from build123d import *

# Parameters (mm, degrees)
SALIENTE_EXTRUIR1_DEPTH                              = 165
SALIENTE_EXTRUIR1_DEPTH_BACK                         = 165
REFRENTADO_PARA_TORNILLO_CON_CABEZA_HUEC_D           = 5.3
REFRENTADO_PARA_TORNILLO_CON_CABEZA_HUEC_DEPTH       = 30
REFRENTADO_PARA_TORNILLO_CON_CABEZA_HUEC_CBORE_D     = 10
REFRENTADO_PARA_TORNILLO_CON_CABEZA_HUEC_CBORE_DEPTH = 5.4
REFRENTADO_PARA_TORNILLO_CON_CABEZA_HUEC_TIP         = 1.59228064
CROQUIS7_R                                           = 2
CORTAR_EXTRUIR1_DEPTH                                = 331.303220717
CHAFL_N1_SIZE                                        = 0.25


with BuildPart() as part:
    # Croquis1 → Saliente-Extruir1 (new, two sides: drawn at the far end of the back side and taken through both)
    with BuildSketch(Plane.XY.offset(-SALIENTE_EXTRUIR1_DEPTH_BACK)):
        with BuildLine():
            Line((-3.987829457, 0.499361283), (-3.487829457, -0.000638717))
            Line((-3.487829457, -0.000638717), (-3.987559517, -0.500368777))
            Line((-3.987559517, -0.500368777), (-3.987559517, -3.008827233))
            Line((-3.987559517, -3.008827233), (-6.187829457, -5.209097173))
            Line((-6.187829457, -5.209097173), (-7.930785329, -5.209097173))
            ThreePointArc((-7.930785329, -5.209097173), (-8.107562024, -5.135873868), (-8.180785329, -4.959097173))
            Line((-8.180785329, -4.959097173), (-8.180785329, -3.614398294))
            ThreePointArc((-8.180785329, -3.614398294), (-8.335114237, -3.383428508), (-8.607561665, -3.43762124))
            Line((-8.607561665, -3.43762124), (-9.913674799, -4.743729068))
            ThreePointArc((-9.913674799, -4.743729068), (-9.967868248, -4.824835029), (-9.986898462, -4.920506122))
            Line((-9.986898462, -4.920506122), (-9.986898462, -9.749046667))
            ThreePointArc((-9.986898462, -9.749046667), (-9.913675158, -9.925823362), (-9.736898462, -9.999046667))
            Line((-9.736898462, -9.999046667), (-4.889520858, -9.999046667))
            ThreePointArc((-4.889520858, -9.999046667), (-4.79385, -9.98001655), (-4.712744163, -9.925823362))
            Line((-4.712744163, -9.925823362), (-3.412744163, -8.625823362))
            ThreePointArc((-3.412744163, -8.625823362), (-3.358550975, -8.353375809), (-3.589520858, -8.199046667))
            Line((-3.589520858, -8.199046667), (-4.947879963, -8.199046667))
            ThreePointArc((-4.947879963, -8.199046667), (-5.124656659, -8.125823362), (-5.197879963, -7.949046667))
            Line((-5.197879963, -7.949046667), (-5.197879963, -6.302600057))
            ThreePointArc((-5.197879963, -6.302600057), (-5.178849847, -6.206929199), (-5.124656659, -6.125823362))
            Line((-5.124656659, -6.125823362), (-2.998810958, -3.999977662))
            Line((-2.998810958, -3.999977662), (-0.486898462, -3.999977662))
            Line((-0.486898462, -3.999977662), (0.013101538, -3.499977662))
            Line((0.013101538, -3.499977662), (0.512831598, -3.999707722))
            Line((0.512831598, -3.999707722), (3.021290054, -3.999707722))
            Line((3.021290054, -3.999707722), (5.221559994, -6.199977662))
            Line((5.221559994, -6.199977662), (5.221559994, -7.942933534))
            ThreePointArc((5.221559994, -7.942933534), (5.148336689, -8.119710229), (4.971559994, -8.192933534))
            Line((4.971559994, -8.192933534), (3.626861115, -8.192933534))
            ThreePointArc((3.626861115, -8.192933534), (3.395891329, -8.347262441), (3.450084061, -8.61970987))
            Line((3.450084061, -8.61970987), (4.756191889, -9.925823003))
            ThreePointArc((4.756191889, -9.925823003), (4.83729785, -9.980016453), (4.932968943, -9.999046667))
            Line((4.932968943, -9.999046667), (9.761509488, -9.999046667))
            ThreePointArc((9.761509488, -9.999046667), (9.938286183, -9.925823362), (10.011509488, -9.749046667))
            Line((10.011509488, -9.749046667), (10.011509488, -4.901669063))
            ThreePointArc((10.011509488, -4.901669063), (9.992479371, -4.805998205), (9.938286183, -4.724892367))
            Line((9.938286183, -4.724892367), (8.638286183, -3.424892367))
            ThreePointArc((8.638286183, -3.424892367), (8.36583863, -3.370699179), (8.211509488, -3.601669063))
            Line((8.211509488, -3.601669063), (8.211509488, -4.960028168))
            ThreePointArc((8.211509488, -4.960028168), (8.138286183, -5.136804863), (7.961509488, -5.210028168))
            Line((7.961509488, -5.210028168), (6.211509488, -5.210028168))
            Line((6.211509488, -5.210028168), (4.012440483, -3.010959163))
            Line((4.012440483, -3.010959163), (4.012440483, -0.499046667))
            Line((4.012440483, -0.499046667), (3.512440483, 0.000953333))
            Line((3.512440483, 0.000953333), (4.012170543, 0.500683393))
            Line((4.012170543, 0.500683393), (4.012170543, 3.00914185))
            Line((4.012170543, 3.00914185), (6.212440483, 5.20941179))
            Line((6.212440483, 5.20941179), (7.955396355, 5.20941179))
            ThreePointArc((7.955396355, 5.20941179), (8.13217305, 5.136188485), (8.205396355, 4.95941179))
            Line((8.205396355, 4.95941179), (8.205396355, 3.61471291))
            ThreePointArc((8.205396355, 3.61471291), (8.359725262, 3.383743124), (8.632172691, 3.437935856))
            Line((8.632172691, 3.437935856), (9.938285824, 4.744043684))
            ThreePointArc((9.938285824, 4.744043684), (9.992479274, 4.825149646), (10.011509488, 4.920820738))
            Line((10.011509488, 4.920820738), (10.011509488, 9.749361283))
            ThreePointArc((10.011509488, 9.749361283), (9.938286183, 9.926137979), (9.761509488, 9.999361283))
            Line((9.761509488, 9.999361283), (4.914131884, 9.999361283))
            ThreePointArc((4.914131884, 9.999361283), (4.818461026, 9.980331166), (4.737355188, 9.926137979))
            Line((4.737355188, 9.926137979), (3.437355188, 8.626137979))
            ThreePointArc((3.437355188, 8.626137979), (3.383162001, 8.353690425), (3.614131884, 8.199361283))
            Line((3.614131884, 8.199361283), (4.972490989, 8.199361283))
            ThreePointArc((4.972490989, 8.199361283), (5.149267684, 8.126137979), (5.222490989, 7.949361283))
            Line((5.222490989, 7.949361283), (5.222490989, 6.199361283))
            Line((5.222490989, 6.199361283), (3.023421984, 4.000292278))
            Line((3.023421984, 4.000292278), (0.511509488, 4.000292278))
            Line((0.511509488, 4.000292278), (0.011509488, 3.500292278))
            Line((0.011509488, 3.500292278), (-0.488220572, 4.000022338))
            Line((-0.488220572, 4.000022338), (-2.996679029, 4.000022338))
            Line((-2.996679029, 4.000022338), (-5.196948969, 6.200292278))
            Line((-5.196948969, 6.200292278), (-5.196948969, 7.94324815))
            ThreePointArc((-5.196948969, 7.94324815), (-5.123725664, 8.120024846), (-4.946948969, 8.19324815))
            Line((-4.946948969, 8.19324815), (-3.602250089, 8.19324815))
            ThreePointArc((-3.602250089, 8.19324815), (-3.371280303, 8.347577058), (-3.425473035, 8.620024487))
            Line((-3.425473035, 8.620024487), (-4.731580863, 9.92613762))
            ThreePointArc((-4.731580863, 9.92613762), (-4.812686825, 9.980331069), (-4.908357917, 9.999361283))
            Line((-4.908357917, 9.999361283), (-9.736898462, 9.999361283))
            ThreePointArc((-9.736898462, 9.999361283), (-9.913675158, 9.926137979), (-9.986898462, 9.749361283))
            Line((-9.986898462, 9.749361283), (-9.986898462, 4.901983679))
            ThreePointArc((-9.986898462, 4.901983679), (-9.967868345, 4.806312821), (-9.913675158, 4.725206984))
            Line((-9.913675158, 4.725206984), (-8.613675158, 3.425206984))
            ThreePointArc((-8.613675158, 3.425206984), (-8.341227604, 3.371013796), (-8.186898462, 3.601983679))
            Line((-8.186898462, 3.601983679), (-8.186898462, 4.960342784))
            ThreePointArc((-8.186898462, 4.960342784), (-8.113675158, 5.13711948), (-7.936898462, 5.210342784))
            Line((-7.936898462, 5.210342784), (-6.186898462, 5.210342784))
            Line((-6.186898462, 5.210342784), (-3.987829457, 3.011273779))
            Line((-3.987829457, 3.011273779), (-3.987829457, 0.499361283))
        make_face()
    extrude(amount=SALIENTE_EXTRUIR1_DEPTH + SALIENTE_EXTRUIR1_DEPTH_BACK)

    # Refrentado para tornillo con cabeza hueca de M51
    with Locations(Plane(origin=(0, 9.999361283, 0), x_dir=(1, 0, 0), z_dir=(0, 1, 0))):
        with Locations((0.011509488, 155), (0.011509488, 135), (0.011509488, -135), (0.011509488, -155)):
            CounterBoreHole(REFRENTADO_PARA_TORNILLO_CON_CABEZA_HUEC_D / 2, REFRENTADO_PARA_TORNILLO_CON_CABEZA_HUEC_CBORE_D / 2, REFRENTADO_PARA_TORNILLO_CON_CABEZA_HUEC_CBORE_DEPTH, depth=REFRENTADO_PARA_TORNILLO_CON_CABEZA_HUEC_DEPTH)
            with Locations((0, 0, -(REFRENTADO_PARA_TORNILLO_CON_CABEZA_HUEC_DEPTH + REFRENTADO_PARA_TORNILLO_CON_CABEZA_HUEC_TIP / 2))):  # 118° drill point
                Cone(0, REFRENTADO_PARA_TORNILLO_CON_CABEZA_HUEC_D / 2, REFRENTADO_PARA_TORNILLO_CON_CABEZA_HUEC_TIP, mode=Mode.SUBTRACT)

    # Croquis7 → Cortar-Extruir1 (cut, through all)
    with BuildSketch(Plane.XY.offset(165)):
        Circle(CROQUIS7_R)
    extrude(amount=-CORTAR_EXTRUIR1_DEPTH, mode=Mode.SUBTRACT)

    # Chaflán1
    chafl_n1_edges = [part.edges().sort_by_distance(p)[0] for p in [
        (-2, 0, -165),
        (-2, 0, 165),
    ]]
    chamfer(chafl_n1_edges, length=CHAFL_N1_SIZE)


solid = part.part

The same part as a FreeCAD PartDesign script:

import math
import FreeCAD as App
import Part
import Sketcher
from FreeCAD import Vector
Q = App.Units.Quantity


def edges_at(feature, points):
    """Names of the edges that pass closest to the given points."""
    edges = feature.Shape.Edges
    near = lambda p: min(range(len(edges)), key=lambda i: edges[i].distToShape(Part.Vertex(*p))[0])
    return sorted({f"Edge{near(p) + 1}" for p in points})

doc = App.newDocument("Part")
body = doc.addObject("PartDesign::Body", "Body")

# Sketch on XY plane
sketch1 = body.newObject("Sketcher::SketchObject", "Sketch")
sketch1.AttachmentSupport = (doc.getObject("XY_Plane"), [""])
sketch1.MapMode = "FlatFace"
sketch1.addGeometry([
    Part.LineSegment(Vector(-3.987829, 0.499361, 0), Vector(-3.487829, -0.000639, 0)),  # 0
    Part.LineSegment(Vector(-3.487829, -0.000639, 0), Vector(-3.98756, -0.500369, 0)),  # 1
    Part.LineSegment(Vector(-3.98756, -0.500369, 0), Vector(-3.98756, -3.008827, 0)),  # 2
    Part.LineSegment(Vector(-3.98756, -3.008827, 0), Vector(-6.187829, -5.209097, 0)),  # 3
    Part.LineSegment(Vector(-6.187829, -5.209097, 0), Vector(-7.930785, -5.209097, 0)),  # 4
    Part.ArcOfCircle(Part.Circle(Vector(-7.930785, -4.959097, 0), Vector(0, 0, 1), 0.25), math.radians(-180), math.radians(-90)),  # 5
    Part.LineSegment(Vector(-8.180785, -4.959097, 0), Vector(-8.180785, -3.614398, 0)),  # 6
    Part.ArcOfCircle(Part.Circle(Vector(-8.430785, -3.614398, 0), Vector(0, 0, 1), 0.25), math.radians(0), math.radians(134.999884)),  # 7
    Part.LineSegment(Vector(-8.607562, -3.437621, 0), Vector(-9.913675, -4.743729, 0)),  # 8
    Part.ArcOfCircle(Part.Circle(Vector(-9.736898, -4.920506, 0), Vector(0, 0, 1), 0.25), math.radians(134.999884), math.radians(180)),  # 9
    Part.LineSegment(Vector(-9.986898, -4.920506, 0), Vector(-9.986898, -9.749047, 0)),  # 10
    Part.ArcOfCircle(Part.Circle(Vector(-9.736898, -9.749047, 0), Vector(0, 0, 1), 0.25), math.radians(180), math.radians(270)),  # 11
    Part.LineSegment(Vector(-9.736898, -9.999047, 0), Vector(-4.889521, -9.999047, 0)),  # 12
    Part.ArcOfCircle(Part.Circle(Vector(-4.889521, -9.749047, 0), Vector(0, 0, 1), 0.25), math.radians(-90), math.radians(-45)),  # 13
    Part.LineSegment(Vector(-4.712744, -9.925823, 0), Vector(-3.412744, -8.625823, 0)),  # 14
    Part.ArcOfCircle(Part.Circle(Vector(-3.589521, -8.449047, 0), Vector(0, 0, 1), 0.25), math.radians(-45), math.radians(90)),  # 15
    Part.LineSegment(Vector(-3.589521, -8.199047, 0), Vector(-4.94788, -8.199047, 0)),  # 16
    Part.ArcOfCircle(Part.Circle(Vector(-4.94788, -7.949047, 0), Vector(0, 0, 1), 0.25), math.radians(180), math.radians(270)),  # 17
    Part.LineSegment(Vector(-5.19788, -7.949047, 0), Vector(-5.19788, -6.3026, 0)),  # 18
    Part.ArcOfCircle(Part.Circle(Vector(-4.94788, -6.3026, 0), Vector(0, 0, 1), 0.25), math.radians(135), math.radians(180.000001)),  # 19
    Part.LineSegment(Vector(-5.124657, -6.125823, 0), Vector(-2.998811, -3.999978, 0)),  # 20
    Part.LineSegment(Vector(-2.998811, -3.999978, 0), Vector(-0.486898, -3.999978, 0)),  # 21
    Part.LineSegment(Vector(-0.486898, -3.999978, 0), Vector(0.013102, -3.499978, 0)),  # 22
    Part.LineSegment(Vector(0.013102, -3.499978, 0), Vector(0.512832, -3.999708, 0)),  # 23
    Part.LineSegment(Vector(0.512832, -3.999708, 0), Vector(3.02129, -3.999708, 0)),  # 24
    Part.LineSegment(Vector(3.02129, -3.999708, 0), Vector(5.22156, -6.199978, 0)),  # 25
    Part.LineSegment(Vector(5.22156, -6.199978, 0), Vector(5.22156, -7.942934, 0)),  # 26
    Part.ArcOfCircle(Part.Circle(Vector(4.97156, -7.942934, 0), Vector(0, 0, 1), 0.25), math.radians(-90), math.radians(0)),  # 27
    Part.LineSegment(Vector(4.97156, -8.192934, 0), Vector(3.626861, -8.192934, 0)),  # 28
    Part.ArcOfCircle(Part.Circle(Vector(3.626861, -8.442934, 0), Vector(0, 0, 1), 0.25), math.radians(90), math.radians(224.999884)),  # 29
    Part.LineSegment(Vector(3.450084, -8.61971, 0), Vector(4.756192, -9.925823, 0)),  # 30
    Part.ArcOfCircle(Part.Circle(Vector(4.932969, -9.749047, 0), Vector(0, 0, 1), 0.25), math.radians(-135.000117), math.radians(-90)),  # 31
    Part.LineSegment(Vector(4.932969, -9.999047, 0), Vector(9.761509, -9.999047, 0)),  # 32
    Part.ArcOfCircle(Part.Circle(Vector(9.761509, -9.749047, 0), Vector(0, 0, 1), 0.25), math.radians(-90), math.radians(0)),  # 33
    Part.LineSegment(Vector(10.011509, -9.749047, 0), Vector(10.011509, -4.901669, 0)),  # 34
    Part.ArcOfCircle(Part.Circle(Vector(9.761509, -4.901669, 0), Vector(0, 0, 1), 0.25), math.radians(0), math.radians(45)),  # 35
    Part.LineSegment(Vector(9.938286, -4.724892, 0), Vector(8.638286, -3.424892, 0)),  # 36
    Part.ArcOfCircle(Part.Circle(Vector(8.461509, -3.601669, 0), Vector(0, 0, 1), 0.25), math.radians(45), math.radians(180)),  # 37
    Part.LineSegment(Vector(8.211509, -3.601669, 0), Vector(8.211509, -4.960028, 0)),  # 38
    Part.ArcOfCircle(Part.Circle(Vector(7.961509, -4.960028, 0), Vector(0, 0, 1), 0.25), math.radians(-90), math.radians(0)),  # 39
    Part.LineSegment(Vector(7.961509, -5.210028, 0), Vector(6.211509, -5.210028, 0)),  # 40
    Part.LineSegment(Vector(6.211509, -5.210028, 0), Vector(4.01244, -3.010959, 0)),  # 41
    Part.LineSegment(Vector(4.01244, -3.010959, 0), Vector(4.01244, -0.499047, 0)),  # 42
    Part.LineSegment(Vector(4.01244, -0.499047, 0), Vector(3.51244, 0.000953, 0)),  # 43
    Part.LineSegment(Vector(3.51244, 0.000953, 0), Vector(4.012171, 0.500683, 0)),  # 44
    Part.LineSegment(Vector(4.012171, 0.500683, 0), Vector(4.012171, 3.009142, 0)),  # 45
    Part.LineSegment(Vector(4.012171, 3.009142, 0), Vector(6.21244, 5.209412, 0)),  # 46
    Part.LineSegment(Vector(6.21244, 5.209412, 0), Vector(7.955396, 5.209412, 0)),  # 47
    Part.ArcOfCircle(Part.Circle(Vector(7.955396, 4.959412, 0), Vector(0, 0, 1), 0.25), math.radians(0), math.radians(90)),  # 48
    Part.LineSegment(Vector(8.205396, 4.959412, 0), Vector(8.205396, 3.614713, 0)),  # 49
    Part.ArcOfCircle(Part.Circle(Vector(8.455396, 3.614713, 0), Vector(0, 0, 1), 0.25), math.radians(180), math.radians(314.999884)),  # 50
    Part.LineSegment(Vector(8.632173, 3.437936, 0), Vector(9.938286, 4.744044, 0)),  # 51
    Part.ArcOfCircle(Part.Circle(Vector(9.761509, 4.920821, 0), Vector(0, 0, 1), 0.25), math.radians(-45.000117), math.radians(0)),  # 52
    Part.LineSegment(Vector(10.011509, 4.920821, 0), Vector(10.011509, 9.749361, 0)),  # 53
    Part.ArcOfCircle(Part.Circle(Vector(9.761509, 9.749361, 0), Vector(0, 0, 1), 0.25), math.radians(0), math.radians(90)),  # 54
    Part.LineSegment(Vector(9.761509, 9.999361, 0), Vector(4.914132, 9.999361, 0)),  # 55
    Part.ArcOfCircle(Part.Circle(Vector(4.914132, 9.749361, 0), Vector(0, 0, 1), 0.25), math.radians(90), math.radians(134.999999)),  # 56
    Part.LineSegment(Vector(4.737355, 9.926138, 0), Vector(3.437355, 8.626138, 0)),  # 57
    Part.ArcOfCircle(Part.Circle(Vector(3.614132, 8.449361, 0), Vector(0, 0, 1), 0.25), math.radians(135), math.radians(270)),  # 58
    Part.LineSegment(Vector(3.614132, 8.199361, 0), Vector(4.972491, 8.199361, 0)),  # 59
    Part.ArcOfCircle(Part.Circle(Vector(4.972491, 7.949361, 0), Vector(0, 0, 1), 0.25), math.radians(0), math.radians(90)),  # 60
    Part.LineSegment(Vector(5.222491, 7.949361, 0), Vector(5.222491, 6.199361, 0)),  # 61
    Part.LineSegment(Vector(5.222491, 6.199361, 0), Vector(3.023422, 4.000292, 0)),  # 62
    Part.LineSegment(Vector(3.023422, 4.000292, 0), Vector(0.511509, 4.000292, 0)),  # 63
    Part.LineSegment(Vector(0.511509, 4.000292, 0), Vector(0.011509, 3.500292, 0)),  # 64
    Part.LineSegment(Vector(0.011509, 3.500292, 0), Vector(-0.488221, 4.000022, 0)),  # 65
    Part.LineSegment(Vector(-0.488221, 4.000022, 0), Vector(-2.996679, 4.000022, 0)),  # 66
    Part.LineSegment(Vector(-2.996679, 4.000022, 0), Vector(-5.196949, 6.200292, 0)),  # 67
    Part.LineSegment(Vector(-5.196949, 6.200292, 0), Vector(-5.196949, 7.943248, 0)),  # 68
    Part.ArcOfCircle(Part.Circle(Vector(-4.946949, 7.943248, 0), Vector(0, 0, 1), 0.25), math.radians(90), math.radians(180)),  # 69
    Part.LineSegment(Vector(-4.946949, 8.193248, 0), Vector(-3.60225, 8.193248, 0)),  # 70
    Part.ArcOfCircle(Part.Circle(Vector(-3.60225, 8.443248, 0), Vector(0, 0, 1), 0.25), math.radians(-90), math.radians(44.999884)),  # 71
    Part.LineSegment(Vector(-3.425473, 8.620024, 0), Vector(-4.731581, 9.926138, 0)),  # 72
    Part.ArcOfCircle(Part.Circle(Vector(-4.908358, 9.749361, 0), Vector(0, 0, 1), 0.25), math.radians(44.999884), math.radians(90)),  # 73
    Part.LineSegment(Vector(-4.908358, 9.999361, 0), Vector(-9.736898, 9.999361, 0)),  # 74
    Part.ArcOfCircle(Part.Circle(Vector(-9.736898, 9.749361, 0), Vector(0, 0, 1), 0.25), math.radians(90), math.radians(180)),  # 75
    Part.LineSegment(Vector(-9.986898, 9.749361, 0), Vector(-9.986898, 4.901984, 0)),  # 76
    Part.ArcOfCircle(Part.Circle(Vector(-9.736898, 4.901984, 0), Vector(0, 0, 1), 0.25), math.radians(-180), math.radians(-135.000001)),  # 77
    Part.LineSegment(Vector(-9.913675, 4.725207, 0), Vector(-8.613675, 3.425207, 0)),  # 78
    Part.ArcOfCircle(Part.Circle(Vector(-8.436898, 3.601984, 0), Vector(0, 0, 1), 0.25), math.radians(-135), math.radians(0)),  # 79
    Part.LineSegment(Vector(-8.186898, 3.601984, 0), Vector(-8.186898, 4.960343, 0)),  # 80
    Part.ArcOfCircle(Part.Circle(Vector(-7.936898, 4.960343, 0), Vector(0, 0, 1), 0.25), math.radians(90), math.radians(180)),  # 81
    Part.LineSegment(Vector(-7.936898, 5.210343, 0), Vector(-6.186898, 5.210343, 0)),  # 82
    Part.LineSegment(Vector(-6.186898, 5.210343, 0), Vector(-3.987829, 3.011274, 0)),  # 83
    Part.LineSegment(Vector(-3.987829, 3.011274, 0), Vector(-3.987829, 0.499361, 0)),  # 84
], False)
sketch1.addConstraint([
    Sketcher.Constraint("Coincident", 0, 2, 1, 1),
    Sketcher.Constraint("Coincident", 1, 2, 2, 1),
    Sketcher.Constraint("Coincident", 2, 2, 3, 1),
    Sketcher.Constraint("Coincident", 3, 2, 4, 1),
    Sketcher.Constraint("Tangent", 4, 2, 5, 2),
    Sketcher.Constraint("Tangent", 5, 1, 6, 1),
    Sketcher.Constraint("Tangent", 6, 2, 7, 1),
    Sketcher.Constraint("Tangent", 7, 2, 8, 1),
    Sketcher.Constraint("Tangent", 8, 2, 9, 1),
    Sketcher.Constraint("Tangent", 9, 2, 10, 1),
    Sketcher.Constraint("Tangent", 10, 2, 11, 1),
    Sketcher.Constraint("Tangent", 11, 2, 12, 1),
    Sketcher.Constraint("Tangent", 12, 2, 13, 1),
    Sketcher.Constraint("Tangent", 13, 2, 14, 1),
    Sketcher.Constraint("Tangent", 14, 2, 15, 1),
    Sketcher.Constraint("Tangent", 15, 2, 16, 1),
    Sketcher.Constraint("Tangent", 16, 2, 17, 2),
    Sketcher.Constraint("Tangent", 17, 1, 18, 1),
    Sketcher.Constraint("Tangent", 18, 2, 19, 2),
    Sketcher.Constraint("Tangent", 19, 1, 20, 1),
    Sketcher.Constraint("Coincident", 20, 2, 21, 1),
    Sketcher.Constraint("Coincident", 21, 2, 22, 1),
    Sketcher.Constraint("Coincident", 22, 2, 23, 1),
    Sketcher.Constraint("Coincident", 23, 2, 24, 1),
    Sketcher.Constraint("Coincident", 24, 2, 25, 1),
    Sketcher.Constraint("Coincident", 25, 2, 26, 1),
    Sketcher.Constraint("Tangent", 26, 2, 27, 2),
    Sketcher.Constraint("Tangent", 27, 1, 28, 1),
    Sketcher.Constraint("Tangent", 28, 2, 29, 1),
    Sketcher.Constraint("Tangent", 29, 2, 30, 1),
    Sketcher.Constraint("Tangent", 30, 2, 31, 1),
    Sketcher.Constraint("Tangent", 31, 2, 32, 1),
    Sketcher.Constraint("Tangent", 32, 2, 33, 1),
    Sketcher.Constraint("Tangent", 33, 2, 34, 1),
    Sketcher.Constraint("Tangent", 34, 2, 35, 1),
    Sketcher.Constraint("Tangent", 35, 2, 36, 1),
    Sketcher.Constraint("Tangent", 36, 2, 37, 1),
    Sketcher.Constraint("Tangent", 37, 2, 38, 1),
    Sketcher.Constraint("Tangent", 38, 2, 39, 2),
    Sketcher.Constraint("Tangent", 39, 1, 40, 1),
    Sketcher.Constraint("Coincident", 40, 2, 41, 1),
    Sketcher.Constraint("Coincident", 41, 2, 42, 1),
    Sketcher.Constraint("Coincident", 42, 2, 43, 1),
    Sketcher.Constraint("Coincident", 43, 2, 44, 1),
    Sketcher.Constraint("Coincident", 44, 2, 45, 1),
    Sketcher.Constraint("Coincident", 45, 2, 46, 1),
    Sketcher.Constraint("Coincident", 46, 2, 47, 1),
    Sketcher.Constraint("Tangent", 47, 2, 48, 2),
    Sketcher.Constraint("Tangent", 48, 1, 49, 1),
    Sketcher.Constraint("Tangent", 49, 2, 50, 1),
    Sketcher.Constraint("Tangent", 50, 2, 51, 1),
    Sketcher.Constraint("Tangent", 51, 2, 52, 1),
    Sketcher.Constraint("Tangent", 52, 2, 53, 1),
    Sketcher.Constraint("Tangent", 53, 2, 54, 1),
    Sketcher.Constraint("Tangent", 54, 2, 55, 1),
    Sketcher.Constraint("Tangent", 55, 2, 56, 1),
    Sketcher.Constraint("Tangent", 56, 2, 57, 1),
    Sketcher.Constraint("Tangent", 57, 2, 58, 1),
    Sketcher.Constraint("Tangent", 58, 2, 59, 1),
    Sketcher.Constraint("Tangent", 59, 2, 60, 2),
    Sketcher.Constraint("Tangent", 60, 1, 61, 1),
    Sketcher.Constraint("Coincident", 61, 2, 62, 1),
    Sketcher.Constraint("Coincident", 62, 2, 63, 1),
    Sketcher.Constraint("Coincident", 63, 2, 64, 1),
    Sketcher.Constraint("Coincident", 64, 2, 65, 1),
    Sketcher.Constraint("Coincident", 65, 2, 66, 1),
    Sketcher.Constraint("Coincident", 66, 2, 67, 1),
    Sketcher.Constraint("Coincident", 67, 2, 68, 1),
    Sketcher.Constraint("Tangent", 68, 2, 69, 2),
    Sketcher.Constraint("Tangent", 69, 1, 70, 1),
    Sketcher.Constraint("Tangent", 70, 2, 71, 1),
    Sketcher.Constraint("Tangent", 71, 2, 72, 1),
    Sketcher.Constraint("Tangent", 72, 2, 73, 1),
    Sketcher.Constraint("Tangent", 73, 2, 74, 1),
    Sketcher.Constraint("Tangent", 74, 2, 75, 1),
    Sketcher.Constraint("Tangent", 75, 2, 76, 1),
    Sketcher.Constraint("Tangent", 76, 2, 77, 1),
    Sketcher.Constraint("Tangent", 77, 2, 78, 1),
    Sketcher.Constraint("Tangent", 78, 2, 79, 1),
    Sketcher.Constraint("Tangent", 79, 2, 80, 1),
    Sketcher.Constraint("Tangent", 80, 2, 81, 2),
    Sketcher.Constraint("Tangent", 81, 1, 82, 1),
    Sketcher.Constraint("Coincident", 82, 2, 83, 1),
    Sketcher.Constraint("Coincident", 83, 2, 84, 1),
    Sketcher.Constraint("Coincident", 84, 2, 0, 1),
    Sketcher.Constraint("Vertical", 2),
    Sketcher.Constraint("Horizontal", 4),
    Sketcher.Constraint("Vertical", 6),
    Sketcher.Constraint("Vertical", 10),
    Sketcher.Constraint("Horizontal", 12),
    Sketcher.Constraint("Horizontal", 16),
    Sketcher.Constraint("Vertical", 18),
    Sketcher.Constraint("Horizontal", 21),
    Sketcher.Constraint("Horizontal", 24),
    Sketcher.Constraint("Vertical", 26),
    Sketcher.Constraint("Horizontal", 28),
    Sketcher.Constraint("Horizontal", 32),
    Sketcher.Constraint("Vertical", 34),
    Sketcher.Constraint("Vertical", 38),
    Sketcher.Constraint("Horizontal", 40),
    Sketcher.Constraint("Vertical", 42),
    Sketcher.Constraint("Vertical", 45),
    Sketcher.Constraint("Horizontal", 47),
    Sketcher.Constraint("Vertical", 49),
    Sketcher.Constraint("Vertical", 53),
    Sketcher.Constraint("Horizontal", 55),
    Sketcher.Constraint("Horizontal", 59),
    Sketcher.Constraint("Vertical", 61),
    Sketcher.Constraint("Horizontal", 63),
    Sketcher.Constraint("Horizontal", 66),
    Sketcher.Constraint("Vertical", 68),
    Sketcher.Constraint("Horizontal", 70),
    Sketcher.Constraint("Horizontal", 74),
    Sketcher.Constraint("Vertical", 76),
    Sketcher.Constraint("Vertical", 80),
    Sketcher.Constraint("Horizontal", 82),
    Sketcher.Constraint("Vertical", 84),
    Sketcher.Constraint("Equal", 5, 7),
    Sketcher.Constraint("Equal", 7, 9),
    Sketcher.Constraint("Equal", 9, 11),
    Sketcher.Constraint("Equal", 11, 13),
    Sketcher.Constraint("Equal", 13, 15),
    Sketcher.Constraint("Equal", 15, 17),
    Sketcher.Constraint("Equal", 17, 19),
    Sketcher.Constraint("Equal", 19, 27),
    Sketcher.Constraint("Equal", 27, 29),
    Sketcher.Constraint("Equal", 29, 31),
    Sketcher.Constraint("Equal", 31, 33),
    Sketcher.Constraint("Equal", 33, 35),
    Sketcher.Constraint("Equal", 35, 37),
    Sketcher.Constraint("Equal", 37, 39),
    Sketcher.Constraint("Equal", 39, 48),
    Sketcher.Constraint("Equal", 48, 50),
    Sketcher.Constraint("Equal", 50, 52),
    Sketcher.Constraint("Equal", 52, 54),
    Sketcher.Constraint("Equal", 54, 56),
    Sketcher.Constraint("Equal", 56, 58),
    Sketcher.Constraint("Equal", 58, 60),
    Sketcher.Constraint("Equal", 60, 69),
    Sketcher.Constraint("Equal", 69, 71),
    Sketcher.Constraint("Equal", 71, 73),
    Sketcher.Constraint("Equal", 73, 75),
    Sketcher.Constraint("Equal", 75, 77),
    Sketcher.Constraint("Equal", 77, 79),
    Sketcher.Constraint("Equal", 79, 81),
    Sketcher.Constraint("Perpendicular", 0, 1),
    Sketcher.Constraint("Parallel", 1, 3),
    Sketcher.Constraint("Parallel", 3, 14),
    Sketcher.Constraint("Parallel", 14, 20),
    Sketcher.Constraint("Parallel", 20, 22),
    Sketcher.Constraint("Perpendicular", 22, 23),
    Sketcher.Constraint("Parallel", 23, 25),
    Sketcher.Constraint("Perpendicular", 8, 30),
    Sketcher.Constraint("Parallel", 25, 36),
    Sketcher.Constraint("Parallel", 36, 41),
    Sketcher.Constraint("Parallel", 41, 43),
    Sketcher.Constraint("Perpendicular", 43, 44),
    Sketcher.Constraint("Parallel", 44, 46),
    Sketcher.Constraint("Perpendicular", 30, 51),
    Sketcher.Constraint("Parallel", 46, 57),
    Sketcher.Constraint("Parallel", 57, 62),
    Sketcher.Constraint("Parallel", 62, 64),
    Sketcher.Constraint("Perpendicular", 64, 65),
    Sketcher.Constraint("Parallel", 65, 67),
    Sketcher.Constraint("Perpendicular", 51, 72),
    Sketcher.Constraint("Parallel", 67, 78),
    Sketcher.Constraint("Parallel", 78, 83),
    Sketcher.Constraint("Horizontal", 13, 3, 31, 3),
    Sketcher.Constraint("Horizontal", 56, 3, 73, 3),
    Sketcher.Constraint("Horizontal", 13, 2, 30, 2),
    Sketcher.Constraint("Vertical", 35, 3, 52, 3),
    Sketcher.Constraint("Vertical", 11, 3, 75, 3),
    Sketcher.Constraint("Equal", 4, 47),
    Sketcher.Constraint("Equal", 12, 55),
    Sketcher.Constraint("Equal", 16, 59),
    Sketcher.Constraint("Equal", 21, 63),
    Sketcher.Constraint("Equal", 24, 66),
    Sketcher.Constraint("Equal", 28, 70),
    Sketcher.Constraint("Equal", 32, 74),
    Sketcher.Constraint("Equal", 40, 82),
    Sketcher.Constraint("Equal", 66, 2),
    Sketcher.Constraint("Equal", 70, 6),
    Sketcher.Constraint("Equal", 74, 10),
    Sketcher.Constraint("Equal", 47, 26),
    Sketcher.Constraint("Equal", 55, 34),
    Sketcher.Constraint("Equal", 59, 38),
    Sketcher.Constraint("Equal", 63, 42),
    Sketcher.Constraint("Equal", 2, 45),
    Sketcher.Constraint("Equal", 6, 49),
    Sketcher.Constraint("Equal", 10, 53),
    Sketcher.Constraint("Equal", 82, 61),
    Sketcher.Constraint("Equal", 26, 68),
    Sketcher.Constraint("Equal", 34, 76),
    Sketcher.Constraint("Equal", 38, 80),
    Sketcher.Constraint("Equal", 42, 84),
    Sketcher.Constraint("Equal", 0, 22),
    Sketcher.Constraint("Equal", 1, 23),
    Sketcher.Constraint("Equal", 3, 25),
    Sketcher.Constraint("Equal", 8, 30),
    Sketcher.Constraint("Equal", 14, 36),
    Sketcher.Constraint("Equal", 22, 43),
    Sketcher.Constraint("Equal", 23, 44),
    Sketcher.Constraint("Equal", 25, 46),
    Sketcher.Constraint("Equal", 36, 57),
    Sketcher.Constraint("Equal", 41, 62),
    Sketcher.Constraint("Equal", 43, 64),
    Sketcher.Constraint("Equal", 44, 65),
    Sketcher.Constraint("Equal", 46, 67),
    Sketcher.Constraint("Equal", 57, 78),
    Sketcher.Constraint("Angle", 0, Q("-45 deg")),
    Sketcher.Constraint("Radius", 5, 0.25),
    Sketcher.Constraint("DistanceX", 40, 2, 40, 1, 1.75),
    Sketcher.Constraint("DistanceX", 28, 2, 28, 1, 1.344699),
    Sketcher.Constraint("Distance", 20, 3.0064),
    Sketcher.Constraint("DistanceX", 16, 2, 16, 1, 1.358359),
    Sketcher.Constraint("DistanceX", 24, 1, 24, 2, 2.508458),
    Sketcher.Constraint("DistanceX", 32, 1, 32, 2, 4.828541),
    Sketcher.Constraint("DistanceY", 7, 3, -1, 1, 3.614398),
    Sketcher.Constraint("DistanceX", 9, 3, -1, 1, 9.736898),
    Sketcher.Constraint("DistanceY", 19, 3, -1, 1, 6.3026),
    Sketcher.Constraint("DistanceX", 79, 3, -1, 1, 8.436898),
    Sketcher.Constraint("DistanceX", 21, 2, -1, 1, 0.486898),
    Sketcher.Constraint("DistanceX", -1, 1, 22, 2, 0.013102),
    Sketcher.Constraint("Distance", 3, 3.111652),
    Sketcher.Constraint("DistanceX", 4, 2, 4, 1, 1.742956),
    Sketcher.Constraint("DistanceX", 12, 1, 12, 2, 4.847378),
])
pad1 = body.newObject("PartDesign::Pad", "Pad")
pad1.Profile = sketch1
pad1.Type = "TwoLengths"
pad1.Length = 165
pad1.Length2 = 165

# Sketch on XZ plane
sketch2 = body.newObject("Sketcher::SketchObject", "Sketch001")
sketch2.AttachmentSupport = (doc.getObject("XZ_Plane"), [""])
sketch2.MapMode = "FlatFace"
sketch2.AttachmentOffset = App.Placement(Vector(0, 0, -9.999361), App.Rotation())
sketch2.addGeometry([
    Part.Circle(Vector(0.011509, -155, 0), Vector(0, 0, 1), 2.65),
    Part.Circle(Vector(0.011509, -135, 0), Vector(0, 0, 1), 2.65),
    Part.Circle(Vector(0.011509, 135, 0), Vector(0, 0, 1), 2.65),
    Part.Circle(Vector(0.011509, 155, 0), Vector(0, 0, 1), 2.65),
], False)
sketch2.addConstraint([
    Sketcher.Constraint("Equal", 0, 1),
    Sketcher.Constraint("Equal", 1, 2),
    Sketcher.Constraint("Equal", 2, 3),
    Sketcher.Constraint("Symmetric", 1, 3, 2, 3, -1),
    Sketcher.Constraint("Symmetric", 0, 3, 3, 3, -1),
    Sketcher.Constraint("Vertical", 0, 3, 1, 3),
    Sketcher.Constraint("Diameter", 0, 5.3),
    Sketcher.Constraint("DistanceY", 0, 3, -1, 1, 155.0),
    Sketcher.Constraint("DistanceY", 1, 3, -1, 1, 135.0),
    Sketcher.Constraint("DistanceX", -1, 1, 0, 3, 0.011509),
])
doc.recompute()
hole = body.newObject("PartDesign::Hole", "Hole")
hole.Profile = sketch2
hole.ThreadType = "None"
hole.Diameter = 5.3
hole.DepthType = "Dimension"
hole.Depth = 30
hole.DrillPoint = "Angled"
hole.DrillPointAngle = 118
hole.HoleCutType = "Counterbore"
hole.HoleCutDiameter = 10
hole.HoleCutDepth = 5.4
hole.Reversed = True

# Sketch on XY plane
sketch3 = body.newObject("Sketcher::SketchObject", "Sketch002")
sketch3.AttachmentSupport = (doc.getObject("XY_Plane"), [""])
sketch3.MapMode = "FlatFace"
sketch3.AttachmentOffset = App.Placement(Vector(0, 0, 165), App.Rotation())
sketch3.addGeometry(Part.Circle(Vector(0, 0, 0), Vector(0, 0, 1), 2), False)
sketch3.addConstraint([
    Sketcher.Constraint("Coincident", 0, 3, -1, 1),
    Sketcher.Constraint("Diameter", 0, 4.0),
])
pocket1 = body.newObject("PartDesign::Pocket", "Pocket")
pocket1.Profile = sketch3
pocket1.Type = "ThroughAll"
doc.recompute()

chamfer = body.newObject("PartDesign::Chamfer", "Chamfer")
chamfer.Base = (pocket1, edges_at(pocket1, [(-2, 0, -165), (-2, 0, 165)]))
chamfer.Size = 0.25

doc.recompute()
